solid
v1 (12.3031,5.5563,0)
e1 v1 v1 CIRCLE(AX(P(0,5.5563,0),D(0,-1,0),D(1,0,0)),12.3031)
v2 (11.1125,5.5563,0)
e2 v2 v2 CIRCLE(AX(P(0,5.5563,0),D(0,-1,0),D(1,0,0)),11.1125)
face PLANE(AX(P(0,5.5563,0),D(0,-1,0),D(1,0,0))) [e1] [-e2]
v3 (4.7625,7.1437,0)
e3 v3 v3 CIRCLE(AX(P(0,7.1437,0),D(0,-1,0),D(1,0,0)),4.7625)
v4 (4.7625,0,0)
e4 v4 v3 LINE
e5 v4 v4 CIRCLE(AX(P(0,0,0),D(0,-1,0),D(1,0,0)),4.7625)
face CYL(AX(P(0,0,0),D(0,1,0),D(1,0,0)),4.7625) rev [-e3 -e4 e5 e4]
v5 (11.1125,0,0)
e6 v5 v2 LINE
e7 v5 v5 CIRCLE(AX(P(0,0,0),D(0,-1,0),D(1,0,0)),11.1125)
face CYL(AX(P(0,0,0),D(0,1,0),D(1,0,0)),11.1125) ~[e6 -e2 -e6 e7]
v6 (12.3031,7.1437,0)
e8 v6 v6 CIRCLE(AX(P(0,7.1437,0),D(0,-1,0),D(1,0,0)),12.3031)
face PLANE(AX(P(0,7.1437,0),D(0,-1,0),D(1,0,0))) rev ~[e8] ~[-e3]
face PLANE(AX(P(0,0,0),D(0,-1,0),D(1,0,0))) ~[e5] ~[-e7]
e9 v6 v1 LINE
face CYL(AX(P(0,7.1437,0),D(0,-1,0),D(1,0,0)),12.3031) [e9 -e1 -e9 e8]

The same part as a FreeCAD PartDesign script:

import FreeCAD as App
import Part
import Sketcher
from FreeCAD import Vector
Q = App.Units.Quantity

doc = App.newDocument("Part")
body = doc.addObject("PartDesign::Body", "Body")

# Sketch on XY plane
sketch1 = body.newObject("Sketcher::SketchObject", "Sketch")
sketch1.AttachmentSupport = (doc.getObject("XY_Plane"), [""])
sketch1.MapMode = "FlatFace"
sketch1.addGeometry([
    Part.LineSegment(Vector(4.8, 7.1, 0), Vector(4.8, 0, 0)),  # 0
    Part.LineSegment(Vector(4.8, 0, 0), Vector(11.1, 0, 0)),  # 1
    Part.LineSegment(Vector(11.1, 0, 0), Vector(11.1, 5.6, 0)),  # 2
    Part.LineSegment(Vector(11.1, 5.6, 0), Vector(12.3, 5.6, 0)),  # 3
    Part.LineSegment(Vector(12.3, 5.6, 0), Vector(12.3, 7.1, 0)),  # 4
    Part.LineSegment(Vector(12.3, 7.1, 0), Vector(4.8, 7.1, 0)),  # 5
], False)
sketch1.addConstraint([
    Sketcher.Constraint("Coincident", 0, 2, 1, 1),
    Sketcher.Constraint("Coincident", 1, 2, 2, 1),
    Sketcher.Constraint("Coincident", 2, 2, 3, 1),
    Sketcher.Constraint("Coincident", 3, 2, 4, 1),
    Sketcher.Constraint("Coincident", 4, 2, 5, 1),
    Sketcher.Constraint("Coincident", 5, 2, 0, 1),
    Sketcher.Constraint("Vertical", 0),
    Sketcher.Constraint("Horizontal", 1),
    Sketcher.Constraint("Vertical", 2),
    Sketcher.Constraint("Horizontal", 3),
    Sketcher.Constraint("Vertical", 4),
    Sketcher.Constraint("Horizontal", 5),
    Sketcher.Constraint("PointOnObject", 0, 2, -1),
    Sketcher.Constraint("DistanceY", 0, 2, 0, 1, Q("0.281248 in")),
    Sketcher.Constraint("DistanceY", 4, 1, 4, 2, Q("0.0625 in")),
    Sketcher.Constraint("DistanceX", -1, 1, 0, 2, Q("0.1875 in")),
    Sketcher.Constraint("DistanceX", -1, 1, 1, 2, Q("0.4375 in")),
    Sketcher.Constraint("DistanceX", -1, 1, 3, 2, Q("0.4843701 in")),
])
revolution = body.newObject("PartDesign::Revolution", "Revolution")
revolution.Profile = sketch1
revolution.ReferenceAxis = (sketch1, ["V_Axis"])
revolution.Angle = 360

doc.recompute()
